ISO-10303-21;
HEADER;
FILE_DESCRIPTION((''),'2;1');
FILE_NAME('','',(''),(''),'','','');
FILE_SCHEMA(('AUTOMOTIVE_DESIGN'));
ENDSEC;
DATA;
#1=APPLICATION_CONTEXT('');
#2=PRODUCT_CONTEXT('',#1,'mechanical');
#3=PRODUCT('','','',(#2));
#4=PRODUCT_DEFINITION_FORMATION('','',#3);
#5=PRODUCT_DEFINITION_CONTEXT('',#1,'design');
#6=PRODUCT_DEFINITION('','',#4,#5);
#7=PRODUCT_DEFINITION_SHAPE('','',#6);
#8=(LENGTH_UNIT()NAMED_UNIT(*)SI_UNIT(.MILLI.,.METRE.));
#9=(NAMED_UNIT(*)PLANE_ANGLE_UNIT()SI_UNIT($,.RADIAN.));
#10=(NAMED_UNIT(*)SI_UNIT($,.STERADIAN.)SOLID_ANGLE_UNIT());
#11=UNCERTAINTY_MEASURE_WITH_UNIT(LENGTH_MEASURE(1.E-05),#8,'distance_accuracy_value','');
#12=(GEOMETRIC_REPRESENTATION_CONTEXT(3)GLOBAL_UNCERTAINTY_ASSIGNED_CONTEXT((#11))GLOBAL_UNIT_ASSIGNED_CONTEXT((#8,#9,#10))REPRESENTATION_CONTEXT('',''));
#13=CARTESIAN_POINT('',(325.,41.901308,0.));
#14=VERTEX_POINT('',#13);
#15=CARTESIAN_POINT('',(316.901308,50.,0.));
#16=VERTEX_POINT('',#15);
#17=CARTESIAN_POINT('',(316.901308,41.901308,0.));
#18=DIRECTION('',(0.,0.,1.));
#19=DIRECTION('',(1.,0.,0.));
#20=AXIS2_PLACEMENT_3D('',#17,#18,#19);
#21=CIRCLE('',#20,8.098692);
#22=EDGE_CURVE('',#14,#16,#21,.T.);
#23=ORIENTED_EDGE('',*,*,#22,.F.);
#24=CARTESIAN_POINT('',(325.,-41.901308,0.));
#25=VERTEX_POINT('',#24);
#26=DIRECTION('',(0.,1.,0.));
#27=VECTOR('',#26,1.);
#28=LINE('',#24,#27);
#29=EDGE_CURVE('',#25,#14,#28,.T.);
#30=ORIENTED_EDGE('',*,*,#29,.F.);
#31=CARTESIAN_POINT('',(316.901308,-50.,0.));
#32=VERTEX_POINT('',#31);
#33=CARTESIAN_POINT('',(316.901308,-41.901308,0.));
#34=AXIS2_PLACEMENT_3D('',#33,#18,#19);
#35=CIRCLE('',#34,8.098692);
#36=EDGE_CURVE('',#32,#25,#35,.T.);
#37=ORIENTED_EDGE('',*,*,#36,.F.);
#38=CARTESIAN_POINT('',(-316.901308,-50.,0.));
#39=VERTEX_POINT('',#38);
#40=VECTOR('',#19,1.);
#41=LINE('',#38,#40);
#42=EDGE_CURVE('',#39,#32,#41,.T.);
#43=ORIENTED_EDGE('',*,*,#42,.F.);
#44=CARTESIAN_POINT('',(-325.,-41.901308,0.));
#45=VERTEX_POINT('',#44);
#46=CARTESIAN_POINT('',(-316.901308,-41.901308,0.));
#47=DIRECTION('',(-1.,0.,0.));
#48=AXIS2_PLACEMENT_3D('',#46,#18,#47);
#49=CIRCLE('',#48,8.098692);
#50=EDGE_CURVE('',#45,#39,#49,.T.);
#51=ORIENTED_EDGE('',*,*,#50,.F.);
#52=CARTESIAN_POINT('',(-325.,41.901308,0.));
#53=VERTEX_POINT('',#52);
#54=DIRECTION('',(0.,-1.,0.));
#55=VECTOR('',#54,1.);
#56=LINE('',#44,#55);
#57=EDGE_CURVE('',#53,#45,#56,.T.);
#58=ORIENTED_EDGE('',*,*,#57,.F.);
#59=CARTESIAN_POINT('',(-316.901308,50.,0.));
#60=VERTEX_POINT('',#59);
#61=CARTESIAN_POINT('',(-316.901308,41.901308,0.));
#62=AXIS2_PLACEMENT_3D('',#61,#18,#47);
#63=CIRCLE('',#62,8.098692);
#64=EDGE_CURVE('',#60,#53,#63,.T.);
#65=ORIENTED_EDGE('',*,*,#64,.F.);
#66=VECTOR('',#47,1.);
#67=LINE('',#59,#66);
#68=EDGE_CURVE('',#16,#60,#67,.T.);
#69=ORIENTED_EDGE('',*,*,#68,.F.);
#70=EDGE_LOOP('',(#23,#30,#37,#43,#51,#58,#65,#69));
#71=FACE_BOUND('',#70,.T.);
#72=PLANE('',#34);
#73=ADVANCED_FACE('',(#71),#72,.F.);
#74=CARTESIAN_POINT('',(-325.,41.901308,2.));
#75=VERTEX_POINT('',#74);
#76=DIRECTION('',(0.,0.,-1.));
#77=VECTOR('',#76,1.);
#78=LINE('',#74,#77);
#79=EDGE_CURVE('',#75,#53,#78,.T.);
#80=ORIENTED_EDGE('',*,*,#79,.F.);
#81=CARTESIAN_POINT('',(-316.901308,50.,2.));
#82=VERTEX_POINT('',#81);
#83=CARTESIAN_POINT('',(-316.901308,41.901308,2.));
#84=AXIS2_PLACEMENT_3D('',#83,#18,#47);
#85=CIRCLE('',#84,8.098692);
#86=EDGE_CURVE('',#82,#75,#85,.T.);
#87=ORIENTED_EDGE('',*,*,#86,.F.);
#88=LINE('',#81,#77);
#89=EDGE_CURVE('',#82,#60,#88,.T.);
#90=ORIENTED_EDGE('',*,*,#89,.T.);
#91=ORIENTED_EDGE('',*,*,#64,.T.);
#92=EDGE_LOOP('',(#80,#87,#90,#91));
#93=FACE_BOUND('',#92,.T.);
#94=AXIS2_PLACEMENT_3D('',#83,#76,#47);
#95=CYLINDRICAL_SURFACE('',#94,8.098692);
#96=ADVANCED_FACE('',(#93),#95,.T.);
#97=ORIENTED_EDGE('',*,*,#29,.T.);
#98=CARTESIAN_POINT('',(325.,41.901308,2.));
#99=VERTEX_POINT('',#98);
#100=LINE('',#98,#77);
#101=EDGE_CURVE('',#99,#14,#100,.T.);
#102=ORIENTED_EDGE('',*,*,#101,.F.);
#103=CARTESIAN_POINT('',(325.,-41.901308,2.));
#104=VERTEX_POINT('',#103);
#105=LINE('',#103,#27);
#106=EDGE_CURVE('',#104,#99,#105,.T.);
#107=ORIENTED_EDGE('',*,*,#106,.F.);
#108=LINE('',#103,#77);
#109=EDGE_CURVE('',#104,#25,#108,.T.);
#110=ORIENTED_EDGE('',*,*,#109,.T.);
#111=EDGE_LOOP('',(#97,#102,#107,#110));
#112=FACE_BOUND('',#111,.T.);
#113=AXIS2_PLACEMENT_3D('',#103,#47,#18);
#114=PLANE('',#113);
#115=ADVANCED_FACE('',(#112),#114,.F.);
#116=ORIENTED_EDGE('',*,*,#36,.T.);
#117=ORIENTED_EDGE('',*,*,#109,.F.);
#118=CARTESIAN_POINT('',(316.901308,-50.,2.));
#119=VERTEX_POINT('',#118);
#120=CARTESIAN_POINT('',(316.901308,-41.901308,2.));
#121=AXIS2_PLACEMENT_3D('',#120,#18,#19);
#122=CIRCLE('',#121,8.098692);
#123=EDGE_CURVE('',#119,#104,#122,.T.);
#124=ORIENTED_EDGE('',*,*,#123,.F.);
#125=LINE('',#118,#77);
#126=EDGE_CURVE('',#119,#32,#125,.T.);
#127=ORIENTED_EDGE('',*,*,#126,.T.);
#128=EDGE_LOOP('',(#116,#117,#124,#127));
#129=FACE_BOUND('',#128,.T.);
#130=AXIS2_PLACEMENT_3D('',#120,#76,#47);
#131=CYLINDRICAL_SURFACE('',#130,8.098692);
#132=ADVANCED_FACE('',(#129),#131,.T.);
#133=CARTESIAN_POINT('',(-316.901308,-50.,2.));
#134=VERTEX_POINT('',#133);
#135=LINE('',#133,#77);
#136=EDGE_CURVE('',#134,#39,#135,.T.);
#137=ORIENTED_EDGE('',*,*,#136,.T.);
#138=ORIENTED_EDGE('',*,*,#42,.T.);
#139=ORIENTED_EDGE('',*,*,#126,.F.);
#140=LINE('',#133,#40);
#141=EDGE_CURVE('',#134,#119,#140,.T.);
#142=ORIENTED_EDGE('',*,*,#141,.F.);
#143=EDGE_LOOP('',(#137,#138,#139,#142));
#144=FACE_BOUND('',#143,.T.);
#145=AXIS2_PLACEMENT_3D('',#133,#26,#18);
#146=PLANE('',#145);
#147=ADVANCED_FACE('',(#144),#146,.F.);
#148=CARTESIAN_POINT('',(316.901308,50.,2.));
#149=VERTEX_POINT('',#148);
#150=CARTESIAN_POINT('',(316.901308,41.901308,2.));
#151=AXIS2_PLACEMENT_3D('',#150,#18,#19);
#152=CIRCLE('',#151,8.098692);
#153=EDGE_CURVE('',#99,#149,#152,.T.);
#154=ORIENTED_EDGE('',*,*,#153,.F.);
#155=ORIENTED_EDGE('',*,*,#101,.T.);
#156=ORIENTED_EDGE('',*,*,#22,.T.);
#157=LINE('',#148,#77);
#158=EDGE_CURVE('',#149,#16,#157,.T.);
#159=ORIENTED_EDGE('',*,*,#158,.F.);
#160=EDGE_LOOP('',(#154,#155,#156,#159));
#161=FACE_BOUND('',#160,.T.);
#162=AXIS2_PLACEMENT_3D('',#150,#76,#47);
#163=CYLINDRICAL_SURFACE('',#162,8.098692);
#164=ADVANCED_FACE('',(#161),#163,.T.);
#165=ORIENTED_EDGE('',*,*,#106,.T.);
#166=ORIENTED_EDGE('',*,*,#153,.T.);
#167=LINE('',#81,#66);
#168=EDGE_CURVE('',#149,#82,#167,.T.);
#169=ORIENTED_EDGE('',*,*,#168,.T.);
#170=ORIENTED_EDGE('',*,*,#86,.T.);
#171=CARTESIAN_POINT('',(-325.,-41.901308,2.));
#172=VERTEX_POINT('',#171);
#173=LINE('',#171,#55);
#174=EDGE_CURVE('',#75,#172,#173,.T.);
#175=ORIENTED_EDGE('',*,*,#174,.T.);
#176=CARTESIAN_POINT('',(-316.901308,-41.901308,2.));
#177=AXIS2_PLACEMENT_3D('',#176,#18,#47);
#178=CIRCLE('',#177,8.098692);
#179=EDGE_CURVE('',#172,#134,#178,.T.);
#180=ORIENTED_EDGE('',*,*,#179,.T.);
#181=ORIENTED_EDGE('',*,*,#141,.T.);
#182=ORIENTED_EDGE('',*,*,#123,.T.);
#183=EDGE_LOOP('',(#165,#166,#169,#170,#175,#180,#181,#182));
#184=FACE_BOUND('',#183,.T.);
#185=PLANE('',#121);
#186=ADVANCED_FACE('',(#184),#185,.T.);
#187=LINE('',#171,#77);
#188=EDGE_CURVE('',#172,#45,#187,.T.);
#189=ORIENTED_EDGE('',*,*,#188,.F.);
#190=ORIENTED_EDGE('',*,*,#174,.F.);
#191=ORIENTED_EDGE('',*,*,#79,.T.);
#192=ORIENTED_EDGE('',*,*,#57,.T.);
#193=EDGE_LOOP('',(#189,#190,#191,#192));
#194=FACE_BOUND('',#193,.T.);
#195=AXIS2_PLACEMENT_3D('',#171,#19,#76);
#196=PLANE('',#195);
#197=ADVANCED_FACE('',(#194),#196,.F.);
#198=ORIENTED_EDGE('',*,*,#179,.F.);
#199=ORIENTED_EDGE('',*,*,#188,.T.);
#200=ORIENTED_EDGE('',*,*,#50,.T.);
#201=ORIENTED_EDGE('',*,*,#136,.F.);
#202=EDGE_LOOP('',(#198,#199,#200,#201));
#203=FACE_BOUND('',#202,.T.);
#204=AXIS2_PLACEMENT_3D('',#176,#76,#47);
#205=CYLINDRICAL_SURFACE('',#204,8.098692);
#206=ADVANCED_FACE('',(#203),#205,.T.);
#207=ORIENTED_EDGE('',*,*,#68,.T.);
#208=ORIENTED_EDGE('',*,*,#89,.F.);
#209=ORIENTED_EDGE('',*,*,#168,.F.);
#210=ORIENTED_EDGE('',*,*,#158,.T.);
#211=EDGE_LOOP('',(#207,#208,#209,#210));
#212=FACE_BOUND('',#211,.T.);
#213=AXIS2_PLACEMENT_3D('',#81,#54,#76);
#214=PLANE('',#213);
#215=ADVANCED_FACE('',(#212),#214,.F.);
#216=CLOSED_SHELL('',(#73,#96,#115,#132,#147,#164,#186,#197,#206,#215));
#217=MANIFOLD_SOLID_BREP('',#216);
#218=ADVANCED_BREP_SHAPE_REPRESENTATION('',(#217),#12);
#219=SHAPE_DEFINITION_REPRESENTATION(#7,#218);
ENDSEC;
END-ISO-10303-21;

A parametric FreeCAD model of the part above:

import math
import FreeCAD as App
import Part
import Sketcher

doc = App.newDocument("Part")
body = doc.addObject("PartDesign::Body", "Body")

# Sketch on XY plane
sketch1 = body.newObject("Sketcher::SketchObject", "Sketch")
sketch1.AttachmentSupport = (doc.getObject("XY_Plane"), [""])
sketch1.MapMode = "FlatFace"
sketch1.addGeometry([
    Part.LineSegment(App.Vector(-316.901308, -50, 0), App.Vector(316.901308, -50, 0)),  # 0
    Part.ArcOfCircle(Part.Circle(App.Vector(316.901308, -41.901308, 0), App.Vector(0, 0, 1), 8.098692), math.radians(-90), math.radians(0)),  # 1
    Part.LineSegment(App.Vector(325, -41.901308, 0), App.Vector(325, 41.901308, 0)),  # 2
    Part.ArcOfCircle(Part.Circle(App.Vector(316.901308, 41.901308, 0), App.Vector(0, 0, 1), 8.098692), math.radians(0), math.radians(90)),  # 3
    Part.LineSegment(App.Vector(316.901308, 50, 0), App.Vector(-316.901308, 50, 0)),  # 4
    Part.ArcOfCircle(Part.Circle(App.Vector(-316.901308, 41.901308, 0), App.Vector(0, 0, 1), 8.098692), math.radians(90), math.radians(180)),  # 5
    Part.LineSegment(App.Vector(-325, 41.901308, 0), App.Vector(-325, -41.901308, 0)),  # 6
    Part.ArcOfCircle(Part.Circle(App.Vector(-316.901308, -41.901308, 0), App.Vector(0, 0, 1), 8.098692), math.radians(-180), math.radians(-90)),  # 7
], False)
sketch1.addConstraint([
    Sketcher.Constraint("Tangent", 0, 2, 1, 1),
    Sketcher.Constraint("Tangent", 1, 2, 2, 1),
    Sketcher.Constraint("Tangent", 2, 2, 3, 1),
    Sketcher.Constraint("Tangent", 3, 2, 4, 1),
    Sketcher.Constraint("Tangent", 4, 2, 5, 1),
    Sketcher.Constraint("Tangent", 5, 2, 6, 1),
    Sketcher.Constraint("Tangent", 6, 2, 7, 1),
    Sketcher.Constraint("Tangent", 7, 2, 0, 1),
    Sketcher.Constraint("Horizontal", 0),
    Sketcher.Constraint("Vertical", 2),
    Sketcher.Constraint("Horizontal", 4),
    Sketcher.Constraint("Vertical", 6),
    Sketcher.Constraint("Equal", 1, 3),
    Sketcher.Constraint("Equal", 3, 5),
    Sketcher.Constraint("Equal", 5, 7),
    Sketcher.Constraint("Symmetric", 1, 3, 5, 3, -1, 1),
    Sketcher.Constraint("DistanceY", 0, 2, -1, 1, 50.0),
    Sketcher.Constraint("DistanceX", -1, 1, 1, 2, 325.0),
    Sketcher.Constraint("Radius", 1, 8.098692),
])
pad1 = body.newObject("PartDesign::Pad", "Pad")
pad1.Profile = sketch1
pad1.Length = 2

doc.recompute()
